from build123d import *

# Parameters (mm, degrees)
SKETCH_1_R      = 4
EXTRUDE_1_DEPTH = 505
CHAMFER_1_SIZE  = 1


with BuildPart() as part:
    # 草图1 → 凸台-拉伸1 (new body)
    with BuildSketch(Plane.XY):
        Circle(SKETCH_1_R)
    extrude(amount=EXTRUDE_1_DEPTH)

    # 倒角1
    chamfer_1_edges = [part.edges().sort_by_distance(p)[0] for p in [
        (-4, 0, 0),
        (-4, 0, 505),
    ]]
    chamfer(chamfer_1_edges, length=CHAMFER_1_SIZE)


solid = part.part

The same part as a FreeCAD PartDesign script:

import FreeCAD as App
import Part
import Sketcher
from FreeCAD import Vector
Q = App.Units.Quantity


def edges_at(feature, points):
    """Names of the edges that pass closest to the given points."""
    edges = feature.Shape.Edges
    near = lambda p: min(range(len(edges)), key=lambda i: edges[i].distToShape(Part.Vertex(*p))[0])
    return sorted({f"Edge{near(p) + 1}" for p in points})

doc = App.newDocument("Part")
params = doc.addObject("Spreadsheet::Sheet", "Params")
for row, (alias, value) in enumerate([
    ("sketch1_diameter", "8 mm"),
    ("pad1_length", "505 mm"),
    ("chamfer_size", "1 mm"),
], start=1):
    params.set(f"A{row}", alias)
    params.set(f"B{row}", "=" + value)
    params.setAlias(f"B{row}", alias)

body = doc.addObject("PartDesign::Body", "Body")

# Sketch on XY plane
sketch1 = doc.addObject("Sketcher::SketchObject", "Sketch")
body.addObject(sketch1)
sketch1.AttachmentSupport = (doc.XY_Plane, [""])
sketch1.MapMode = "FlatFace"
sketch1.addGeometry(Part.Circle(Vector(0, 0, 0), Vector(0, 0, 1), 4), False)
sketch1.addConstraint([
    Sketcher.Constraint("Coincident", 0, 3, -1, 1),
    Sketcher.Constraint("Diameter", 0, Q("8 mm")),
])
sketch1.setExpression("Constraints[1]", "Params.sketch1_diameter")
pad1 = doc.addObject("PartDesign::Pad", "Pad")
body.addObject(pad1)
pad1.Profile = sketch1
pad1.setExpression("Length", "Params.pad1_length")
doc.recompute()

chamfer = doc.addObject("PartDesign::Chamfer", "Chamfer")
body.addObject(chamfer)
chamfer.Base = (pad1, edges_at(pad1, [(-4, 0, 0), (-4, 0, 505)]))
chamfer.setExpression("Size", "Params.chamfer_size")

doc.recompute()
